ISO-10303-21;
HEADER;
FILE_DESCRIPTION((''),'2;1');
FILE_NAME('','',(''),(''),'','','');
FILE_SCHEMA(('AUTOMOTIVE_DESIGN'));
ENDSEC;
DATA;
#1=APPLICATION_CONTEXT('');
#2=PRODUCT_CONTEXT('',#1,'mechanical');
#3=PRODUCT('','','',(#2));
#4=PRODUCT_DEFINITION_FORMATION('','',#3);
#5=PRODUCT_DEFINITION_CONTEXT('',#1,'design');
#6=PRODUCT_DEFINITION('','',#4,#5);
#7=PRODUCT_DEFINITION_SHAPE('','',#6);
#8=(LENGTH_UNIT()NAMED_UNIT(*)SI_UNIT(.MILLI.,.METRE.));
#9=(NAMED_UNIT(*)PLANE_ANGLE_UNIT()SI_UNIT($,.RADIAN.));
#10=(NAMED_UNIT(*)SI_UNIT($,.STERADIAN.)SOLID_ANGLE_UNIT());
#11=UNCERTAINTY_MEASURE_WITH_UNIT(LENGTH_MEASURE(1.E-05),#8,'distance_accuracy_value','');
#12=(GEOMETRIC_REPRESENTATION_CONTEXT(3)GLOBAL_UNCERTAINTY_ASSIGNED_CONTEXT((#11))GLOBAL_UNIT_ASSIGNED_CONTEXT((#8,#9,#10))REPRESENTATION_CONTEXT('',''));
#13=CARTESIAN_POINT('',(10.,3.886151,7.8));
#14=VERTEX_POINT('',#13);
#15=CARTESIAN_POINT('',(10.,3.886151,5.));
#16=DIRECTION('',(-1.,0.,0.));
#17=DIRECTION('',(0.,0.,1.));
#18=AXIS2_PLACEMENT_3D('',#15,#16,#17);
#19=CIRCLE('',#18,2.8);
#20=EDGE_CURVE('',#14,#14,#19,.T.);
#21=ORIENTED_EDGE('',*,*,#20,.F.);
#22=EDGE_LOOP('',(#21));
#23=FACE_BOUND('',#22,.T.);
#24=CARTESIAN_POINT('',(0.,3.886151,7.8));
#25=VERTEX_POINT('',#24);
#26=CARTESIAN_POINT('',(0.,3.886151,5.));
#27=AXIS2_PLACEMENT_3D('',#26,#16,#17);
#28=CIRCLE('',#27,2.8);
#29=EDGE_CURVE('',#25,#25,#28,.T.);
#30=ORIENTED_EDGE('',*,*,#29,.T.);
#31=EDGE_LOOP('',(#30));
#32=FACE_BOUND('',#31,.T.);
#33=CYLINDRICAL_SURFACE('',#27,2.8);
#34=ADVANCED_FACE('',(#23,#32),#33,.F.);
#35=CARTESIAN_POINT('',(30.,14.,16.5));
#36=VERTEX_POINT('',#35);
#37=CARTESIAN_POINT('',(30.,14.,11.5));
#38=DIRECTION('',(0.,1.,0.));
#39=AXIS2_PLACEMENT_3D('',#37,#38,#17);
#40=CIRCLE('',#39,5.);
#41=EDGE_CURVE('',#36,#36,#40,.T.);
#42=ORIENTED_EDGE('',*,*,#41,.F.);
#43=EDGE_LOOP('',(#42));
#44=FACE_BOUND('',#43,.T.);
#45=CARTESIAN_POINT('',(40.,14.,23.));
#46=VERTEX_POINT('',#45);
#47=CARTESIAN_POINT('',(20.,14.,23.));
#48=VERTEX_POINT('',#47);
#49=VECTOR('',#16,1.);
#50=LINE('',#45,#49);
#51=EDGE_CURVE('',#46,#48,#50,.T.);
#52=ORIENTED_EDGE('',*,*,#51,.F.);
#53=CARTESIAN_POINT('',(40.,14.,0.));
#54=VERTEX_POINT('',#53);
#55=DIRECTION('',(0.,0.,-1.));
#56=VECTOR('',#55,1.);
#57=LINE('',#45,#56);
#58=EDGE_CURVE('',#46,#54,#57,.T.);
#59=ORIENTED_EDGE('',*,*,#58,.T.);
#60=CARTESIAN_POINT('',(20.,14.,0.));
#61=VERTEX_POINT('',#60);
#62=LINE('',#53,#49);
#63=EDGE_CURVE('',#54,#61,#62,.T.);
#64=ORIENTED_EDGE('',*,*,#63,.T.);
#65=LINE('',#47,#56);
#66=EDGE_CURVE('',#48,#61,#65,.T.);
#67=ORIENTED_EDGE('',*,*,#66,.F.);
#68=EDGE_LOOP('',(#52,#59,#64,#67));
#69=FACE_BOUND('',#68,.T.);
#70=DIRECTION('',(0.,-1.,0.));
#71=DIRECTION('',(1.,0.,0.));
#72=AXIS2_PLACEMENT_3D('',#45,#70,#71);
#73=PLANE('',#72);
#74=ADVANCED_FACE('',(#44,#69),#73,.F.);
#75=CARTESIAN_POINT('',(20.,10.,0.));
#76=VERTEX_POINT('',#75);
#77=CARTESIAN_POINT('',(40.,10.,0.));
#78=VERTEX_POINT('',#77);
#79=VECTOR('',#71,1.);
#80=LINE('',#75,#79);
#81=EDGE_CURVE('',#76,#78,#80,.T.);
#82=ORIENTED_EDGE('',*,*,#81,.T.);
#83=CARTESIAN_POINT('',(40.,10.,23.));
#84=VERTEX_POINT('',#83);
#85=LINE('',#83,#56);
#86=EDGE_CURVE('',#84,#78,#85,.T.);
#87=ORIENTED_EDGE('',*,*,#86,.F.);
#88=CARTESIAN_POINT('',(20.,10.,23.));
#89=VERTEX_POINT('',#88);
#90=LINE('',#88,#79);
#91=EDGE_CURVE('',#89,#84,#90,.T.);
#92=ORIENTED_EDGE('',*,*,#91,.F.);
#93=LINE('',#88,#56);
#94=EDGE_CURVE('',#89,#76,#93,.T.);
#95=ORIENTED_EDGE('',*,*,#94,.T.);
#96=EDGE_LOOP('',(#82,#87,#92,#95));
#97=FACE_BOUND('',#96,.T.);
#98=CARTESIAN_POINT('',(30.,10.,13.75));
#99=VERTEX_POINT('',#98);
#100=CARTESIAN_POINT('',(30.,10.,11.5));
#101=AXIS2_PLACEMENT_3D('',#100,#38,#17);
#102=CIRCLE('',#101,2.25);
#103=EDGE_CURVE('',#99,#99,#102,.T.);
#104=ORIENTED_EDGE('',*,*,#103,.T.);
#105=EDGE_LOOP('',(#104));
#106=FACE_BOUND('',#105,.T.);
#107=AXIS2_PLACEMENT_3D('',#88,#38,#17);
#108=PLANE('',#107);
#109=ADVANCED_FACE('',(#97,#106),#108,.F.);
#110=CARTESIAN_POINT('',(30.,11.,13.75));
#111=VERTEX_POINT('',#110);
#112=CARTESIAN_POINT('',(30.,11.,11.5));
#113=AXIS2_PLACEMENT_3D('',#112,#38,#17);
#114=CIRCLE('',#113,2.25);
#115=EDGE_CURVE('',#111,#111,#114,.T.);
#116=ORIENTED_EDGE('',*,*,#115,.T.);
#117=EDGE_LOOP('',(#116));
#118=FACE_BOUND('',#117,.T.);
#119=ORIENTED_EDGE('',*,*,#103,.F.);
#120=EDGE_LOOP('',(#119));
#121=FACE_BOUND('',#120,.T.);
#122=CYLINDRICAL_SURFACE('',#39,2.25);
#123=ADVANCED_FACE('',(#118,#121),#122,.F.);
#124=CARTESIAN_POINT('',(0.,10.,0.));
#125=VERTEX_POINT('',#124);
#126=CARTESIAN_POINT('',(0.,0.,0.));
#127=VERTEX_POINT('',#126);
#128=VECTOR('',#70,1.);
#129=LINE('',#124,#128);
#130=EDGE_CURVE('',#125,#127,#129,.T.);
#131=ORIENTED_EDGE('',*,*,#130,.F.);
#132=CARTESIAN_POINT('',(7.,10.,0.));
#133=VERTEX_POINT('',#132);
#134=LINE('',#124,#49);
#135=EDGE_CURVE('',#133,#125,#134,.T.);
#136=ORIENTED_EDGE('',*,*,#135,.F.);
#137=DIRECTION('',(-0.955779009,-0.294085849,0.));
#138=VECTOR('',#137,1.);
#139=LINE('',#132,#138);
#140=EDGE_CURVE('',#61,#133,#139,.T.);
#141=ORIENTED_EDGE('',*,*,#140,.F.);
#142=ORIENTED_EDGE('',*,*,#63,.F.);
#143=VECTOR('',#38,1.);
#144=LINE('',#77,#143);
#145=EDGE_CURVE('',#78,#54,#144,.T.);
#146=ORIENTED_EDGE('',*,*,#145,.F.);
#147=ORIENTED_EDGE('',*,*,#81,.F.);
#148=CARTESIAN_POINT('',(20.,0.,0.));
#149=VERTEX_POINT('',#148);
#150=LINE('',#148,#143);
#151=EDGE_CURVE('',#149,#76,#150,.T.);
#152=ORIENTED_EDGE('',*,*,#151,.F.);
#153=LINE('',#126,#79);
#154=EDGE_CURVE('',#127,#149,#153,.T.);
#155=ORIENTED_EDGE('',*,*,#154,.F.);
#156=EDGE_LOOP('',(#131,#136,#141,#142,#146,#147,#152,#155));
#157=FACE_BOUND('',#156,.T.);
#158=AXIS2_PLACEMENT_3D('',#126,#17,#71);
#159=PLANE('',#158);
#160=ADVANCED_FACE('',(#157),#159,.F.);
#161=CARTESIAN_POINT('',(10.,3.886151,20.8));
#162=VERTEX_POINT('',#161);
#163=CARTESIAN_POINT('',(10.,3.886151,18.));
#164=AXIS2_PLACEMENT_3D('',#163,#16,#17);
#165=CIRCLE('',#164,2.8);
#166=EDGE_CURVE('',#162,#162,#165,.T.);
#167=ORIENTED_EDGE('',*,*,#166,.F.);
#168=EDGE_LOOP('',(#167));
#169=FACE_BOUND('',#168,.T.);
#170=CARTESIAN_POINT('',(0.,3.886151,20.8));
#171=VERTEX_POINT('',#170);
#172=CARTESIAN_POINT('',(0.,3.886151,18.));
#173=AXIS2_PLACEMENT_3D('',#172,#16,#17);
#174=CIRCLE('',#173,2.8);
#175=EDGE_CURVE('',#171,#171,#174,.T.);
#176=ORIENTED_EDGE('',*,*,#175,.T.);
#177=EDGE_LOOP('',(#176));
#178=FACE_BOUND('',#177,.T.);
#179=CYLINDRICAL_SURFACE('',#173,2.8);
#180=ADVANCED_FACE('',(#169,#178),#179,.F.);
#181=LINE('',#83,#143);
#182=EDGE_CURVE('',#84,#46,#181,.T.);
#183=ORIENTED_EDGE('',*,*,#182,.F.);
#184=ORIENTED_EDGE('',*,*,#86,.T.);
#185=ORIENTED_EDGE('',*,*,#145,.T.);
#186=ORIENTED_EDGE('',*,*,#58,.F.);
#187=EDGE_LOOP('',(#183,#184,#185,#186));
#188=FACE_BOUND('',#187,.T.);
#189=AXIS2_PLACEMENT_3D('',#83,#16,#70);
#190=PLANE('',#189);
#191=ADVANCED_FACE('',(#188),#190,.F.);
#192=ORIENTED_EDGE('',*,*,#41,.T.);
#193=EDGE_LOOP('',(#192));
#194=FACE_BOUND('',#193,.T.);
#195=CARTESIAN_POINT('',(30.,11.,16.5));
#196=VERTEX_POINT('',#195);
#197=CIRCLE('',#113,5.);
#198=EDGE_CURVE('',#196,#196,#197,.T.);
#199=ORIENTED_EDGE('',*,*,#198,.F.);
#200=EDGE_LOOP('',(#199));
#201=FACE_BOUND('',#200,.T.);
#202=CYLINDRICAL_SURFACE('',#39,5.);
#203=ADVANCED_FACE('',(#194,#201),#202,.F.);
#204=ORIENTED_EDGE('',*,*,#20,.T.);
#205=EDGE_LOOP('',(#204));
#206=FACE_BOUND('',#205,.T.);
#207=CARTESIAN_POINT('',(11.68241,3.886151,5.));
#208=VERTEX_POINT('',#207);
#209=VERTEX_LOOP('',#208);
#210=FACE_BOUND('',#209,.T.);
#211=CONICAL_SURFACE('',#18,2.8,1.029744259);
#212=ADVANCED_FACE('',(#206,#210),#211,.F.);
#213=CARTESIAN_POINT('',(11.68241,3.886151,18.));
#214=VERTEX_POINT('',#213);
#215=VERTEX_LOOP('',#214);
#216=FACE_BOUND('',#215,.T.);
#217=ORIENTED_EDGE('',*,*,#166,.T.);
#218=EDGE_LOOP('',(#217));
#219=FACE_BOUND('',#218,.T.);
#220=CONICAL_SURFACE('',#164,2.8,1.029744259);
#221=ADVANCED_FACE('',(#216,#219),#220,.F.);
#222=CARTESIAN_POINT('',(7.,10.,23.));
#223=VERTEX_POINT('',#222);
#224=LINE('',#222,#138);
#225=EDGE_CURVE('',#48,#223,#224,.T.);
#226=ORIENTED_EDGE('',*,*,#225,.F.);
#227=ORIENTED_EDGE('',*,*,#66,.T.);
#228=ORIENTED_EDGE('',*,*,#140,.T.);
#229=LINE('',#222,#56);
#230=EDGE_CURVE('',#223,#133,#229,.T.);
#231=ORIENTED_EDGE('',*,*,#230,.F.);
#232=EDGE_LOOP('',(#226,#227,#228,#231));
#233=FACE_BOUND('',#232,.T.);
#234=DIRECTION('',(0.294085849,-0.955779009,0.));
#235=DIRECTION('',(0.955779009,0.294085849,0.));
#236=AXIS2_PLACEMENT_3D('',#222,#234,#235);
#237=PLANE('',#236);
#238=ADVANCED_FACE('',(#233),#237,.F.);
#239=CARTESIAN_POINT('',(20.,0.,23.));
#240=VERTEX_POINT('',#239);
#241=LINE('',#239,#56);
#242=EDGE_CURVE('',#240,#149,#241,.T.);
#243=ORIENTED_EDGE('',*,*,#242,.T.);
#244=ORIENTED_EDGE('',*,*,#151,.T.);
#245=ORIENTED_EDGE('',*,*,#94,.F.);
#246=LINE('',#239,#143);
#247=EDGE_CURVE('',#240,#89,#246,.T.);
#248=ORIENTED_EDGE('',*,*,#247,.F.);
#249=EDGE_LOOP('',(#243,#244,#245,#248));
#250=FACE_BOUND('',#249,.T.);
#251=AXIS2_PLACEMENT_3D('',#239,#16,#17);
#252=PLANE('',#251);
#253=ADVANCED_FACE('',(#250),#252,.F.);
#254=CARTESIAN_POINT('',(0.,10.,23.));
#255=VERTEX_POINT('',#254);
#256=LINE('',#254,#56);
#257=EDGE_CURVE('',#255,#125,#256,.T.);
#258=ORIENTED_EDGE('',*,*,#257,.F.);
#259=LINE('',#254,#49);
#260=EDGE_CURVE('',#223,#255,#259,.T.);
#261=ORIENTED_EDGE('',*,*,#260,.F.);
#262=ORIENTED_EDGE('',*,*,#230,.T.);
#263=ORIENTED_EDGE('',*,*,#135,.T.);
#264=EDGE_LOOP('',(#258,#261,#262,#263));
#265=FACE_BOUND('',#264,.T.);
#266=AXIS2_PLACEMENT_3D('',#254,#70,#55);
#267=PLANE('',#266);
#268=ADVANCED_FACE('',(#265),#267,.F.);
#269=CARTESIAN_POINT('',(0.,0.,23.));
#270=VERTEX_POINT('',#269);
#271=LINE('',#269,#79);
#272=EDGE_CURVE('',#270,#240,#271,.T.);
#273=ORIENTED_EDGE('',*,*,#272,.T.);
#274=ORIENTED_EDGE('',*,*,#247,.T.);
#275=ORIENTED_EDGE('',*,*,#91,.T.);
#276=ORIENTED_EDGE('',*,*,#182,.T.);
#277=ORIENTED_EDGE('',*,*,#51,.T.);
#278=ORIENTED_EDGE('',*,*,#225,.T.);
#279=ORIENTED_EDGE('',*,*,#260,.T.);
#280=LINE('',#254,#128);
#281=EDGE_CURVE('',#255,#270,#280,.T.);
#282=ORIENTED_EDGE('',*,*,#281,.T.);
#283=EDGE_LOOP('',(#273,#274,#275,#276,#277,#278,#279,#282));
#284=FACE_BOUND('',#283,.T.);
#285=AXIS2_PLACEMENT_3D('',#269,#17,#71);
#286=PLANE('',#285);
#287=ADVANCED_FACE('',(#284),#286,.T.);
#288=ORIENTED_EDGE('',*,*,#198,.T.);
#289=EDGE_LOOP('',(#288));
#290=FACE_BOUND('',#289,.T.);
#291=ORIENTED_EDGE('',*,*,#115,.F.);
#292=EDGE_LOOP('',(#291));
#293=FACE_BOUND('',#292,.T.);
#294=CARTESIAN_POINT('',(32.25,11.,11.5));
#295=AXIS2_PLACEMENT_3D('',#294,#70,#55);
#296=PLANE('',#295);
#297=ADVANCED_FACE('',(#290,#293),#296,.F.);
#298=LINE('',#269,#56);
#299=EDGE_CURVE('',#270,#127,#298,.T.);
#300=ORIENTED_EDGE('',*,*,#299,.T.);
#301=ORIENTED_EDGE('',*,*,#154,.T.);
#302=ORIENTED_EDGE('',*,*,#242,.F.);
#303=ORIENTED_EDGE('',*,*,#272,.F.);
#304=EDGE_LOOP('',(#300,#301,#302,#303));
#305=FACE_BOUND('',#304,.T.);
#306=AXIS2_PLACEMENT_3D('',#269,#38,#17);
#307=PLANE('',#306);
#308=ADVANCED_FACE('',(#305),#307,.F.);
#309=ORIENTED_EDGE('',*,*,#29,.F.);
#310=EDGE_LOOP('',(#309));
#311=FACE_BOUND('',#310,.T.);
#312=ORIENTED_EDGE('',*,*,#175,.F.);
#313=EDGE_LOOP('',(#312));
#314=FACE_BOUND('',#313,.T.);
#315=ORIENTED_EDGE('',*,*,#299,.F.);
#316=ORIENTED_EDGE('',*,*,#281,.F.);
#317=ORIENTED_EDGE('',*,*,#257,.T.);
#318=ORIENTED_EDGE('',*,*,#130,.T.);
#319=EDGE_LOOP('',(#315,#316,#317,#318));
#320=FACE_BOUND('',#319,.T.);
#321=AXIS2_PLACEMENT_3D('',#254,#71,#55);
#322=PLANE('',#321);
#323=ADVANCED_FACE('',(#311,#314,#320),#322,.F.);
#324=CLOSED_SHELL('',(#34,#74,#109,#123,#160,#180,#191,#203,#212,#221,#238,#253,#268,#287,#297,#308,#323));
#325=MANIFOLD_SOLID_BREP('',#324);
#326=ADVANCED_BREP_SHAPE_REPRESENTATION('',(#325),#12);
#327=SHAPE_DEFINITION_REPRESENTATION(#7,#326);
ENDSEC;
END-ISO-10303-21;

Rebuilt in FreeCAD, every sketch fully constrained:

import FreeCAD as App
import Part
import Sketcher
from FreeCAD import Vector
Q = App.Units.Quantity

doc = App.newDocument("Part")
body = doc.addObject("PartDesign::Body", "Body")

sketch1 = doc.addObject("Sketcher::SketchObject", "Sketch")
body.addObject(sketch1)
sketch1.AttachmentSupport = (doc.XY_Plane, [""])
sketch1.MapMode = "FlatFace"
sketch1.addGeometry([
    Part.LineSegment(Vector(0, 0, 0), Vector(20, 0, 0)),
    Part.LineSegment(Vector(20, 0, 0), Vector(20, 10, 0)),
    Part.LineSegment(Vector(20, 10, 0), Vector(40, 10, 0)),
    Part.LineSegment(Vector(40, 10, 0), Vector(40, 14, 0)),
    Part.LineSegment(Vector(40, 14, 0), Vector(20, 14, 0)),
    Part.LineSegment(Vector(20, 14, 0), Vector(7, 10, 0)),
    Part.LineSegment(Vector(7, 10, 0), Vector(0, 10, 0)),
    Part.LineSegment(Vector(0, 10, 0), Vector(0, 0, 0)),
], False)
sketch1.addConstraint([
    Sketcher.Constraint("Coincident", 0, 2, 1, 1),
    Sketcher.Constraint("Coincident", 1, 2, 2, 1),
    Sketcher.Constraint("Coincident", 2, 2, 3, 1),
    Sketcher.Constraint("Coincident", 3, 2, 4, 1),
    Sketcher.Constraint("Coincident", 4, 2, 5, 1),
    Sketcher.Constraint("Coincident", 5, 2, 6, 1),
    Sketcher.Constraint("Coincident", 6, 2, 7, 1),
    Sketcher.Constraint("Coincident", 7, 2, 0, 1),
    Sketcher.Constraint("Horizontal", 0),
    Sketcher.Constraint("Vertical", 1),
    Sketcher.Constraint("Horizontal", 2),
    Sketcher.Constraint("Vertical", 3),
    Sketcher.Constraint("Horizontal", 4),
    Sketcher.Constraint("Horizontal", 6),
    Sketcher.Constraint("Vertical", 7),
    Sketcher.Constraint("Coincident", 7, 2, -1, 1),
    Sketcher.Constraint("Horizontal", 2, 2, 5, 2),
    Sketcher.Constraint("Vertical", 1, 2, 4, 2),
    Sketcher.Constraint("Equal", 0, 2),
    Sketcher.Constraint("DistanceX", 0, 1, 0, 2, Q("20 mm")),
    Sketcher.Constraint("DistanceX", 6, 2, 6, 1, Q("7 mm")),
    Sketcher.Constraint("DistanceY", 1, 1, 1, 2, Q("10 mm")),
    Sketcher.Constraint("DistanceY", 3, 1, 3, 2, Q("4 mm")),
])
pad1 = doc.addObject("PartDesign::Pad", "Pad")
body.addObject(pad1)
pad1.Profile = sketch1
pad1.Length = 23

sketch2 = doc.addObject("Sketcher::SketchObject", "Sketch001")
body.addObject(sketch2)
sketch2.AttachmentSupport = (doc.YZ_Plane, [""])
sketch2.MapMode = "FlatFace"
sketch2.addGeometry([
    Part.Circle(Vector(3.9, 5, 0), Vector(0, 0, 1), 2.8),
    Part.Circle(Vector(3.9, 18, 0), Vector(0, 0, 1), 2.8),
], False)
sketch2.addConstraint([
    Sketcher.Constraint("Equal", 0, 1),
    Sketcher.Constraint("Vertical", 0, 3, 1, 3),
    Sketcher.Constraint("Diameter", 0, Q("5.6 mm")),
    Sketcher.Constraint("DistanceY", -1, 1, 0, 3, Q("5 mm")),
    Sketcher.Constraint("DistanceY", -1, 1, 1, 3, Q("18 mm")),
    Sketcher.Constraint("DistanceX", -1, 1, 0, 3, Q("3.886151 mm")),
])
doc.recompute()
hole = doc.addObject("PartDesign::Hole", "Hole")
body.addObject(hole)
hole.Profile = sketch2
hole.ThreadType = "None"
hole.Diameter = 5.6
hole.DepthType = "Dimension"
hole.Depth = 10
hole.DrillPoint = "Angled"
hole.DrillPointAngle = 118
hole.Reversed = True

sketch3 = doc.addObject("Sketcher::SketchObject", "Sketch002")
body.addObject(sketch3)
sketch3.AttachmentSupport = (doc.XZ_Plane, [""])
sketch3.MapMode = "FlatFace"
sketch3.AttachmentOffset = App.Placement(Vector(0, 0, -14), App.Rotation())
sketch3.addGeometry(Part.Circle(Vector(30, 11.5, 0), Vector(0, 0, 1), 2.2), False)
sketch3.addConstraint([
    Sketcher.Constraint("Diameter", 0, Q("4.5 mm")),
    Sketcher.Constraint("DistanceX", -1, 1, 0, 3, Q("30 mm")),
    Sketcher.Constraint("DistanceY", -1, 1, 0, 3, Q("11.5 mm")),
])
doc.recompute()
hole2 = doc.addObject("PartDesign::Hole", "Hole001")
body.addObject(hole2)
hole2.Profile = sketch3
hole2.ThreadType = "None"
hole2.Diameter = 4.5
hole2.DepthType = "Dimension"
hole2.Depth = 10
hole2.DrillPoint = "Angled"
hole2.DrillPointAngle = 118
hole2.HoleCutType = "Counterbore"
hole2.HoleCutDiameter = 10
hole2.HoleCutDepth = 3
hole2.Reversed = True

doc.recompute()
